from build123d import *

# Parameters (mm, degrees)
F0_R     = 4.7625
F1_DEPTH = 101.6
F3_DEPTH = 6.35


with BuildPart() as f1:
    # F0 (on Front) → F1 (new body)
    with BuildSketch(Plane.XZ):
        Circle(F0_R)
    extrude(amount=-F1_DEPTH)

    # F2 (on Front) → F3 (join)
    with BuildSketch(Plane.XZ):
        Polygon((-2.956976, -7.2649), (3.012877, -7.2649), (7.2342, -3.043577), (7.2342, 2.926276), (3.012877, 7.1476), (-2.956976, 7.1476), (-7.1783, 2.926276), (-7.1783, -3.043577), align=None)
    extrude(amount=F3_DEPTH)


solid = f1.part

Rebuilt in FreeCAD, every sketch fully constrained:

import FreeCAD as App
import Part
import Sketcher

V = App.Vector
Q = App.Units.Quantity


def add_polygon(sketch, points):
    """Adds a closed chain of lines whose ends are joined by coincident constraints."""
    first, n = sketch.GeometryCount, len(points)
    for a, b in zip(points, points[1:] + points[:1]):
        sketch.addGeometry(Part.LineSegment(App.Vector(*a, 0), App.Vector(*b, 0)), False)
    for i in range(n):
        sketch.addConstraint(Sketcher.Constraint("Coincident", first + i, 2, first + (i + 1) % n, 1))

doc = App.newDocument("Part")
params = doc.addObject("Spreadsheet::Sheet", "Params")
for row, (alias, value) in enumerate([
    ("sketch1_diameter", "0.375 in"),
    ("pad1_length", "4 in"),
    ("pad2_length", "0.25 in"),
], start=1):
    params.set(f"A{row}", alias)
    params.set(f"B{row}", "=" + value)
    params.setAlias(f"B{row}", alias)

body = doc.addObject("PartDesign::Body", "Body")

sketch1 = body.newObject("Sketcher::SketchObject", "Sketch")
sketch1.AttachmentSupport = (doc.getObject("XZ_Plane"), [""])
sketch1.MapMode = "FlatFace"
sketch1.addGeometry(Part.Circle(V(0, 0, 0), V(0, 0, 1), 4.8), False)
sketch1.addConstraint([
    Sketcher.Constraint("Coincident", 0, 3, -1, 1),
    Sketcher.Constraint("Diameter", 0, Q("0.375 in")),
])
sketch1.setExpression("Constraints[1]", "Params.sketch1_diameter")
pad1 = body.newObject("PartDesign::Pad", "Pad")
pad1.Profile = sketch1
pad1.setExpression("Length", "Params.pad1_length")
pad1.Reversed = True

sketch2 = body.newObject("Sketcher::SketchObject", "Sketch001")
sketch2.AttachmentSupport = (doc.getObject("XZ_Plane"), [""])
sketch2.MapMode = "FlatFace"
add_polygon(sketch2, [(-3, -7), (3, -7), (7, -3), (7, 3), (3, 7), (-3, 7), (-7, 3), (-7, -3)])
sketch2.addConstraint([
    Sketcher.Constraint("Horizontal", 0),
    Sketcher.Constraint("Vertical", 2),
    Sketcher.Constraint("Horizontal", 4),
    Sketcher.Constraint("Vertical", 6),
    Sketcher.Constraint("Perpendicular", 1, 3),
    Sketcher.Constraint("Perpendicular", 3, 5),
    Sketcher.Constraint("Perpendicular", 5, 7),
    Sketcher.Constraint("Horizontal", 2, 2, 5, 2),
    Sketcher.Constraint("Horizontal", 1, 2, 6, 2),
    Sketcher.Constraint("Vertical", 0, 2, 3, 2),
    Sketcher.Constraint("Vertical", 4, 2, 7, 2),
    Sketcher.Constraint("Equal", 4, 2),
    Sketcher.Constraint("DistanceY", 0, 2, -1, 1, 7.2649),
    Sketcher.Constraint("DistanceX", -1, 1, 1, 2, 7.2342),
    Sketcher.Constraint("DistanceY", -1, 1, 3, 2, 7.1476),
    Sketcher.Constraint("DistanceX", 0, 1, 0, 2, 5.969853),
])
pad2 = body.newObject("PartDesign::Pad", "Pad001")
pad2.Profile = sketch2
pad2.setExpression("Length", "Params.pad2_length")

doc.recompute()
